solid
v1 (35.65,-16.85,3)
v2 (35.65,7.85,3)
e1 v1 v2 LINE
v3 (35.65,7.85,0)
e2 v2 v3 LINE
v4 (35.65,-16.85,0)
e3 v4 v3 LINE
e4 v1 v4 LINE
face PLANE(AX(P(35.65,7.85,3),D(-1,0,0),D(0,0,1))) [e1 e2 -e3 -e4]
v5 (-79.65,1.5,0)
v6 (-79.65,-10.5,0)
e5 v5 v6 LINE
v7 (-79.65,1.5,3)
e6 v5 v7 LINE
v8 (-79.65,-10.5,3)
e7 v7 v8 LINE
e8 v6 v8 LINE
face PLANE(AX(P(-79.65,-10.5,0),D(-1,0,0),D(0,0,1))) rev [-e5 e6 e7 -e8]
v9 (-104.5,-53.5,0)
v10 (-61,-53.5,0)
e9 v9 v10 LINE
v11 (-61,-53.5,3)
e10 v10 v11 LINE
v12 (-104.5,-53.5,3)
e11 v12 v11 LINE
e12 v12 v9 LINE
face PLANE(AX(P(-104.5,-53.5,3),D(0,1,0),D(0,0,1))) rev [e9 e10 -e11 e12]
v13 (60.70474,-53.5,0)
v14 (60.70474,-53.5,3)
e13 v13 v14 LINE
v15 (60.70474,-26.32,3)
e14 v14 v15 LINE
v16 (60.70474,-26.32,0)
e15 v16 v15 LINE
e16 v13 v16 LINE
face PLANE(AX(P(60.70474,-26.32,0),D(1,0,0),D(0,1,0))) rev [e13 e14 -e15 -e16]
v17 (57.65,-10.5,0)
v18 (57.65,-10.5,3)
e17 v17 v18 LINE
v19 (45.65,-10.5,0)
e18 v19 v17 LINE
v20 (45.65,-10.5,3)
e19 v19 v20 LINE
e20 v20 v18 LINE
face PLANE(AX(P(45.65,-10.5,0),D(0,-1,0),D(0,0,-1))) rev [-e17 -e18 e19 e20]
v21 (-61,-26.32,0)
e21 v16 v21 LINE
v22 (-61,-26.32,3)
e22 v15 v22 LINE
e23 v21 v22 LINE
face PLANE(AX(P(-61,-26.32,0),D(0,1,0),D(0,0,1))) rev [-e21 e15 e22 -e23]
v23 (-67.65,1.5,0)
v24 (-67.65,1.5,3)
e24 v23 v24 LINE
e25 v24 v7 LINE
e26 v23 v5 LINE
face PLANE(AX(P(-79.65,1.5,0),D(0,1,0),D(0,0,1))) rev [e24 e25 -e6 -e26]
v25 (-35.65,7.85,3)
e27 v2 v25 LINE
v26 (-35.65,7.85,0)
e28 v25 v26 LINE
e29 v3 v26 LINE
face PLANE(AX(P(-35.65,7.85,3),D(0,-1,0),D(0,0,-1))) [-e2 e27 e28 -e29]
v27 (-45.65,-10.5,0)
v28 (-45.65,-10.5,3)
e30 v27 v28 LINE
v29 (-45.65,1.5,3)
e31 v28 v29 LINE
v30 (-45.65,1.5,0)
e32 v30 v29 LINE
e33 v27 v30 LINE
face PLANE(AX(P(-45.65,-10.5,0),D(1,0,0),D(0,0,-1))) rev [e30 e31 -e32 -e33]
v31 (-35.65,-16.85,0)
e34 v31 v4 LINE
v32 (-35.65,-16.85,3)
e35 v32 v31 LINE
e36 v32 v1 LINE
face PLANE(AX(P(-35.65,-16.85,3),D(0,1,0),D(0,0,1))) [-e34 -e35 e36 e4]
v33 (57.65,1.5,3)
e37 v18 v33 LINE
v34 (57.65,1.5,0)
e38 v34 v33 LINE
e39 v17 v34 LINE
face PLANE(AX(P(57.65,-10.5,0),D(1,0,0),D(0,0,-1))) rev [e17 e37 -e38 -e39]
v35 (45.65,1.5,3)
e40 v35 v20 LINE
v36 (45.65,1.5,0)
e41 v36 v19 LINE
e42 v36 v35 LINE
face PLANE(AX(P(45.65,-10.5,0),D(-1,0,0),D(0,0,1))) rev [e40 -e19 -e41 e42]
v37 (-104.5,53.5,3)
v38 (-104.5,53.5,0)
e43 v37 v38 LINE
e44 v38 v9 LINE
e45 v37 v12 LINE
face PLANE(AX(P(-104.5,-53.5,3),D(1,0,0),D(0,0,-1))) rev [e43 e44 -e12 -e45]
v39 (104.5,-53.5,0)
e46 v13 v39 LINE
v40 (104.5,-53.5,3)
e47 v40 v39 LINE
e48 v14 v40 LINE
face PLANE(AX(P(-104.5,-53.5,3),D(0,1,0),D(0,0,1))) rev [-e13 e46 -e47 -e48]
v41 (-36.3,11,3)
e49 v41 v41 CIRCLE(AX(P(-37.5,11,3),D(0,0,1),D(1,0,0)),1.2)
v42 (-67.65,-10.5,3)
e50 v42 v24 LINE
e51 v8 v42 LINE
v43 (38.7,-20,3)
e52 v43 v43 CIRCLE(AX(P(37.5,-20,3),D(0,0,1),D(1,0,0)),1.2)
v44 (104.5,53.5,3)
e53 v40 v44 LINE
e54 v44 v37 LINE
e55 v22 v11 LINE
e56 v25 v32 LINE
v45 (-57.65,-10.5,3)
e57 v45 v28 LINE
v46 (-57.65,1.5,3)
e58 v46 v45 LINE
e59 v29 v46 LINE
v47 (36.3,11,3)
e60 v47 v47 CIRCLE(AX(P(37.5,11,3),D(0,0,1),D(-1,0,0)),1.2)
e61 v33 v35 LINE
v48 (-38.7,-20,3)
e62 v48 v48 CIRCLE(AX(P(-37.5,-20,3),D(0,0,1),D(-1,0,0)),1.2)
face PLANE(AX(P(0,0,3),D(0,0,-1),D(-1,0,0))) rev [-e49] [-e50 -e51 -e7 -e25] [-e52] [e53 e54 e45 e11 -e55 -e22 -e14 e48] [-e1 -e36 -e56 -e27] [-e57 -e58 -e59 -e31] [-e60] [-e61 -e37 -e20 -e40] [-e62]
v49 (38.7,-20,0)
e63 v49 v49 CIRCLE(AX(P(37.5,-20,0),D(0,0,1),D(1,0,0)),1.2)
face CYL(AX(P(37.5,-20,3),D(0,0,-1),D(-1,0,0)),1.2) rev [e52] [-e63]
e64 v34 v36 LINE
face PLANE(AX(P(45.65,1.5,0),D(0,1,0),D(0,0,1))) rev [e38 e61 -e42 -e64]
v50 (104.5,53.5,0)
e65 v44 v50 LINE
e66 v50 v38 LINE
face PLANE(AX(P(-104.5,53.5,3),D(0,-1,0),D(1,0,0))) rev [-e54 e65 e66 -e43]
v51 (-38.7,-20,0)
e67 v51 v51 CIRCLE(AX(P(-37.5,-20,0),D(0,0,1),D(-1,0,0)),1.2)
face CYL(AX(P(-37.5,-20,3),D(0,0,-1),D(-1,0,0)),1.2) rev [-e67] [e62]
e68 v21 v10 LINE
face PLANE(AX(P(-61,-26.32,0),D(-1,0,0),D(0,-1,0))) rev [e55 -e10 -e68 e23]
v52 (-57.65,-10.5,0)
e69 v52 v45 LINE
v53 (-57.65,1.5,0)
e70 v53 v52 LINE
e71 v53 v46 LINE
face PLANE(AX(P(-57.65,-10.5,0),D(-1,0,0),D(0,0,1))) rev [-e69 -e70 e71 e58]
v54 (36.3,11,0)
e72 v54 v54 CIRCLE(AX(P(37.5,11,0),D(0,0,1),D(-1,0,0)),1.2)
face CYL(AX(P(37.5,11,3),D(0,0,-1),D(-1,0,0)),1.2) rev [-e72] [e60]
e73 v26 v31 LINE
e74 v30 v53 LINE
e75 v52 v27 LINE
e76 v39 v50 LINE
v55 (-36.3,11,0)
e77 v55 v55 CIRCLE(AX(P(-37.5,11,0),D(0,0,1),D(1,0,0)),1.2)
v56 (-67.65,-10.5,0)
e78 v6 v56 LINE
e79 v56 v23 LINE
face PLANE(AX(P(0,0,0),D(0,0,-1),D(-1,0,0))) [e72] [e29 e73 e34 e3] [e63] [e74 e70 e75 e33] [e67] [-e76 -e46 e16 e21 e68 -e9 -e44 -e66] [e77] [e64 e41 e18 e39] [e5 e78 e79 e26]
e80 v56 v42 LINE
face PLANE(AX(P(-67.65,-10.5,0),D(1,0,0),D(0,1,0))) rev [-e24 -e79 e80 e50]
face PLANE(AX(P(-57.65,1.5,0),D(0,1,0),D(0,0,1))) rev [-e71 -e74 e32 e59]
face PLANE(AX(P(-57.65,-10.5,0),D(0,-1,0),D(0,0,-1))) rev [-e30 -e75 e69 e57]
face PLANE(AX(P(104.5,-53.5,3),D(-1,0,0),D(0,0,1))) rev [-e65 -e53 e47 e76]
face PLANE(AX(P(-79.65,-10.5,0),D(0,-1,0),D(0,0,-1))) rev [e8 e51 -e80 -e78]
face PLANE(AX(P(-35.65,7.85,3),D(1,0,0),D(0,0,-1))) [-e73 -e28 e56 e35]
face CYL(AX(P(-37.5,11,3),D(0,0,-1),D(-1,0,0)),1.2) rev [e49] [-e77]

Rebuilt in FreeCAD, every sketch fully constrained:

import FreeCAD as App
import Part
import Sketcher
Q = App.Units.Quantity

doc = App.newDocument("Part")
body = doc.addObject("PartDesign::Body", "Body")

sketch1 = body.newObject("Sketcher::SketchObject", "Sketch")
sketch1.AttachmentSupport = (doc.getObject("XY_Plane"), [""])
sketch1.MapMode = "FlatFace"
sketch1.addGeometry([
    Part.LineSegment(App.Vector(-104.5, 53.5, 0), App.Vector(-104.5, -53.5, 0)),
    Part.LineSegment(App.Vector(-104.5, -53.5, 0), App.Vector(104.5, -53.5, 0)),
    Part.LineSegment(App.Vector(104.5, -53.5, 0), App.Vector(104.5, 53.5, 0)),
    Part.LineSegment(App.Vector(104.5, 53.5, 0), App.Vector(-104.5, 53.5, 0)),
    Part.Circle(App.Vector(-37.5, -20, 0), App.Vector(0, 0, 1), 1.2),
    Part.Circle(App.Vector(37.5, -20, 0), App.Vector(0, 0, 1), 1.2),
    Part.Circle(App.Vector(-37.5, 11, 0), App.Vector(0, 0, 1), 1.2),
    Part.LineSegment(App.Vector(35.65, -16.85, 0), App.Vector(-35.65, -16.85, 0)),
    Part.LineSegment(App.Vector(-35.65, -16.85, 0), App.Vector(-35.65, 7.85, 0)),
    Part.LineSegment(App.Vector(-35.65, 7.85, 0), App.Vector(35.65, 7.85, 0)),
    Part.LineSegment(App.Vector(35.65, 7.85, 0), App.Vector(35.65, -16.85, 0)),
    Part.Circle(App.Vector(37.5, 11, 0), App.Vector(0, 0, 1), 1.2),
], False)
sketch1.addConstraint([
    Sketcher.Constraint("Coincident", 0, 2, 1, 1),
    Sketcher.Constraint("Coincident", 1, 2, 2, 1),
    Sketcher.Constraint("Coincident", 2, 2, 3, 1),
    Sketcher.Constraint("Coincident", 3, 2, 0, 1),
    Sketcher.Constraint("Coincident", 7, 2, 8, 1),
    Sketcher.Constraint("Coincident", 8, 2, 9, 1),
    Sketcher.Constraint("Coincident", 9, 2, 10, 1),
    Sketcher.Constraint("Coincident", 10, 2, 7, 1),
    Sketcher.Constraint("Vertical", 0),
    Sketcher.Constraint("Horizontal", 1),
    Sketcher.Constraint("Vertical", 2),
    Sketcher.Constraint("Horizontal", 3),
    Sketcher.Constraint("Horizontal", 7),
    Sketcher.Constraint("Vertical", 8),
    Sketcher.Constraint("Horizontal", 9),
    Sketcher.Constraint("Vertical", 10),
    Sketcher.Constraint("Equal", 4, 5),
    Sketcher.Constraint("Equal", 5, 6),
    Sketcher.Constraint("Equal", 6, 11),
    Sketcher.Constraint("Symmetric", 0, 2, 2, 2, -1, 1),
    Sketcher.Constraint("Symmetric", 4, 3, 5, 3, -2),
    Sketcher.Constraint("Symmetric", 6, 3, 11, 3, -2),
    Sketcher.Constraint("Vertical", 4, 3, 6, 3),
    Sketcher.Constraint("Diameter", 4, Q("2.4 mm")),
    Sketcher.Constraint("DistanceX", 1, 1, 1, 2, Q("209 mm")),
    Sketcher.Constraint("DistanceY", 0, 2, 0, 1, Q("107 mm")),
    Sketcher.Constraint("DistanceX", 7, 2, 7, 1, Q("71.3 mm")),
    Sketcher.Constraint("DistanceY", 8, 1, 8, 2, Q("24.7 mm")),
    Sketcher.Constraint("DistanceY", 4, 3, -1, 1, Q("20 mm")),
    Sketcher.Constraint("DistanceY", -1, 1, 6, 3, Q("11 mm")),
    Sketcher.Constraint("DistanceX", 4, 3, 5, 3, Q("75 mm")),
    Sketcher.Constraint("DistanceX", 7, 2, -1, 1, Q("35.65 mm")),
    Sketcher.Constraint("DistanceY", 7, 2, -1, 1, Q("16.85 mm")),
])
pad1 = body.newObject("PartDesign::Pad", "Pad")
pad1.Profile = sketch1
pad1.Length = 3

sketch2 = body.newObject("Sketcher::SketchObject", "Sketch001")
sketch2.AttachmentSupport = (doc.getObject("XY_Plane"), [""])
sketch2.MapMode = "FlatFace"
sketch2.AttachmentOffset = App.Placement(App.Vector(0, 0, 3), App.Rotation())
sketch2.addGeometry([
    Part.LineSegment(App.Vector(-61, -26.32, 0), App.Vector(-61, -53.5, 0)),
    Part.LineSegment(App.Vector(-61, -53.5, 0), App.Vector(60.70474, -53.5, 0)),
    Part.LineSegment(App.Vector(60.70474, -53.5, 0), App.Vector(60.70474, -26.32, 0)),
    Part.LineSegment(App.Vector(60.70474, -26.32, 0), App.Vector(-61, -26.32, 0)),
], False)
sketch2.addConstraint([
    Sketcher.Constraint("Coincident", 0, 2, 1, 1),
    Sketcher.Constraint("Coincident", 1, 2, 2, 1),
    Sketcher.Constraint("Coincident", 2, 2, 3, 1),
    Sketcher.Constraint("Coincident", 3, 2, 0, 1),
    Sketcher.Constraint("Vertical", 0),
    Sketcher.Constraint("Horizontal", 1),
    Sketcher.Constraint("Vertical", 2),
    Sketcher.Constraint("Horizontal", 3),
    Sketcher.Constraint("DistanceX", 0, 2, -1, 1, Q("61 mm")),
    Sketcher.Constraint("DistanceY", 0, 2, 0, 1, Q("27.18 mm")),
    Sketcher.Constraint("DistanceY", 0, 2, -1, 1, Q("53.5 mm")),
    Sketcher.Constraint("DistanceX", 1, 1, 1, 2, Q("121.70474 mm")),
])
pocket1 = body.newObject("PartDesign::Pocket", "Pocket")
pocket1.Profile = sketch2
pocket1.Type = "ThroughAll"

sketch3 = body.newObject("Sketcher::SketchObject", "Sketch002")
sketch3.AttachmentSupport = (doc.getObject("XY_Plane"), [""])
sketch3.MapMode = "FlatFace"
sketch3.AttachmentOffset = App.Placement(App.Vector(0, 0, 3), App.Rotation())
sketch3.addGeometry([
    Part.LineSegment(App.Vector(-57.65, 1.5, 0), App.Vector(-57.65, -10.5, 0)),
    Part.LineSegment(App.Vector(-57.65, -10.5, 0), App.Vector(-45.65, -10.5, 0)),
    Part.LineSegment(App.Vector(-45.65, -10.5, 0), App.Vector(-45.65, 1.5, 0)),
    Part.LineSegment(App.Vector(-45.65, 1.5, 0), App.Vector(-57.65, 1.5, 0)),
    Part.LineSegment(App.Vector(-79.65, 1.5, 0), App.Vector(-79.65, -10.5, 0)),
    Part.LineSegment(App.Vector(-79.65, -10.5, 0), App.Vector(-67.65, -10.5, 0)),
    Part.LineSegment(App.Vector(-67.65, -10.5, 0), App.Vector(-67.65, 1.5, 0)),
    Part.LineSegment(App.Vector(-67.65, 1.5, 0), App.Vector(-79.65, 1.5, 0)),
    Part.LineSegment(App.Vector(45.65, 1.5, 0), App.Vector(45.65, -10.5, 0)),
    Part.LineSegment(App.Vector(45.65, -10.5, 0), App.Vector(57.65, -10.5, 0)),
    Part.LineSegment(App.Vector(57.65, -10.5, 0), App.Vector(57.65, 1.5, 0)),
    Part.LineSegment(App.Vector(57.65, 1.5, 0), App.Vector(45.65, 1.5, 0)),
], False)
sketch3.addConstraint([
    Sketcher.Constraint("Coincident", 0, 2, 1, 1),
    Sketcher.Constraint("Coincident", 1, 2, 2, 1),
    Sketcher.Constraint("Coincident", 2, 2, 3, 1),
    Sketcher.Constraint("Coincident", 3, 2, 0, 1),
    Sketcher.Constraint("Coincident", 4, 2, 5, 1),
    Sketcher.Constraint("Coincident", 5, 2, 6, 1),
    Sketcher.Constraint("Coincident", 6, 2, 7, 1),
    Sketcher.Constraint("Coincident", 7, 2, 4, 1),
    Sketcher.Constraint("Coincident", 8, 2, 9, 1),
    Sketcher.Constraint("Coincident", 9, 2, 10, 1),
    Sketcher.Constraint("Coincident", 10, 2, 11, 1),
    Sketcher.Constraint("Coincident", 11, 2, 8, 1),
    Sketcher.Constraint("Vertical", 0),
    Sketcher.Constraint("Horizontal", 1),
    Sketcher.Constraint("Vertical", 2),
    Sketcher.Constraint("Horizontal", 3),
    Sketcher.Constraint("Vertical", 4),
    Sketcher.Constraint("Horizontal", 5),
    Sketcher.Constraint("Vertical", 6),
    Sketcher.Constraint("Horizontal", 7),
    Sketcher.Constraint("Vertical", 8),
    Sketcher.Constraint("Horizontal", 9),
    Sketcher.Constraint("Vertical", 10),
    Sketcher.Constraint("Horizontal", 11),
    Sketcher.Constraint("Symmetric", 1, 2, 8, 2, -2),
    Sketcher.Constraint("Symmetric", 3, 2, 10, 2, -2),
    Sketcher.Constraint("Horizontal", 1, 2, 4, 2),
    Sketcher.Constraint("Horizontal", 3, 2, 6, 2),
    Sketcher.Constraint("Equal", 3, 5),
    Sketcher.Constraint("Equal", 11, 0),
    Sketcher.Constraint("DistanceX", 1, 1, 1, 2, Q("12 mm")),
    Sketcher.Constraint("DistanceX", 4, 2, 0, 2, Q("22 mm")),
    Sketcher.Constraint("DistanceY", 0, 2, -1, 1, Q("10.5 mm")),
    Sketcher.Constraint("DistanceX", 1, 2, 8, 2, Q("91.3 mm")),
])
pocket2 = body.newObject("PartDesign::Pocket", "Pocket001")
pocket2.Profile = sketch3
pocket2.Type = "ThroughAll"

doc.recompute()
